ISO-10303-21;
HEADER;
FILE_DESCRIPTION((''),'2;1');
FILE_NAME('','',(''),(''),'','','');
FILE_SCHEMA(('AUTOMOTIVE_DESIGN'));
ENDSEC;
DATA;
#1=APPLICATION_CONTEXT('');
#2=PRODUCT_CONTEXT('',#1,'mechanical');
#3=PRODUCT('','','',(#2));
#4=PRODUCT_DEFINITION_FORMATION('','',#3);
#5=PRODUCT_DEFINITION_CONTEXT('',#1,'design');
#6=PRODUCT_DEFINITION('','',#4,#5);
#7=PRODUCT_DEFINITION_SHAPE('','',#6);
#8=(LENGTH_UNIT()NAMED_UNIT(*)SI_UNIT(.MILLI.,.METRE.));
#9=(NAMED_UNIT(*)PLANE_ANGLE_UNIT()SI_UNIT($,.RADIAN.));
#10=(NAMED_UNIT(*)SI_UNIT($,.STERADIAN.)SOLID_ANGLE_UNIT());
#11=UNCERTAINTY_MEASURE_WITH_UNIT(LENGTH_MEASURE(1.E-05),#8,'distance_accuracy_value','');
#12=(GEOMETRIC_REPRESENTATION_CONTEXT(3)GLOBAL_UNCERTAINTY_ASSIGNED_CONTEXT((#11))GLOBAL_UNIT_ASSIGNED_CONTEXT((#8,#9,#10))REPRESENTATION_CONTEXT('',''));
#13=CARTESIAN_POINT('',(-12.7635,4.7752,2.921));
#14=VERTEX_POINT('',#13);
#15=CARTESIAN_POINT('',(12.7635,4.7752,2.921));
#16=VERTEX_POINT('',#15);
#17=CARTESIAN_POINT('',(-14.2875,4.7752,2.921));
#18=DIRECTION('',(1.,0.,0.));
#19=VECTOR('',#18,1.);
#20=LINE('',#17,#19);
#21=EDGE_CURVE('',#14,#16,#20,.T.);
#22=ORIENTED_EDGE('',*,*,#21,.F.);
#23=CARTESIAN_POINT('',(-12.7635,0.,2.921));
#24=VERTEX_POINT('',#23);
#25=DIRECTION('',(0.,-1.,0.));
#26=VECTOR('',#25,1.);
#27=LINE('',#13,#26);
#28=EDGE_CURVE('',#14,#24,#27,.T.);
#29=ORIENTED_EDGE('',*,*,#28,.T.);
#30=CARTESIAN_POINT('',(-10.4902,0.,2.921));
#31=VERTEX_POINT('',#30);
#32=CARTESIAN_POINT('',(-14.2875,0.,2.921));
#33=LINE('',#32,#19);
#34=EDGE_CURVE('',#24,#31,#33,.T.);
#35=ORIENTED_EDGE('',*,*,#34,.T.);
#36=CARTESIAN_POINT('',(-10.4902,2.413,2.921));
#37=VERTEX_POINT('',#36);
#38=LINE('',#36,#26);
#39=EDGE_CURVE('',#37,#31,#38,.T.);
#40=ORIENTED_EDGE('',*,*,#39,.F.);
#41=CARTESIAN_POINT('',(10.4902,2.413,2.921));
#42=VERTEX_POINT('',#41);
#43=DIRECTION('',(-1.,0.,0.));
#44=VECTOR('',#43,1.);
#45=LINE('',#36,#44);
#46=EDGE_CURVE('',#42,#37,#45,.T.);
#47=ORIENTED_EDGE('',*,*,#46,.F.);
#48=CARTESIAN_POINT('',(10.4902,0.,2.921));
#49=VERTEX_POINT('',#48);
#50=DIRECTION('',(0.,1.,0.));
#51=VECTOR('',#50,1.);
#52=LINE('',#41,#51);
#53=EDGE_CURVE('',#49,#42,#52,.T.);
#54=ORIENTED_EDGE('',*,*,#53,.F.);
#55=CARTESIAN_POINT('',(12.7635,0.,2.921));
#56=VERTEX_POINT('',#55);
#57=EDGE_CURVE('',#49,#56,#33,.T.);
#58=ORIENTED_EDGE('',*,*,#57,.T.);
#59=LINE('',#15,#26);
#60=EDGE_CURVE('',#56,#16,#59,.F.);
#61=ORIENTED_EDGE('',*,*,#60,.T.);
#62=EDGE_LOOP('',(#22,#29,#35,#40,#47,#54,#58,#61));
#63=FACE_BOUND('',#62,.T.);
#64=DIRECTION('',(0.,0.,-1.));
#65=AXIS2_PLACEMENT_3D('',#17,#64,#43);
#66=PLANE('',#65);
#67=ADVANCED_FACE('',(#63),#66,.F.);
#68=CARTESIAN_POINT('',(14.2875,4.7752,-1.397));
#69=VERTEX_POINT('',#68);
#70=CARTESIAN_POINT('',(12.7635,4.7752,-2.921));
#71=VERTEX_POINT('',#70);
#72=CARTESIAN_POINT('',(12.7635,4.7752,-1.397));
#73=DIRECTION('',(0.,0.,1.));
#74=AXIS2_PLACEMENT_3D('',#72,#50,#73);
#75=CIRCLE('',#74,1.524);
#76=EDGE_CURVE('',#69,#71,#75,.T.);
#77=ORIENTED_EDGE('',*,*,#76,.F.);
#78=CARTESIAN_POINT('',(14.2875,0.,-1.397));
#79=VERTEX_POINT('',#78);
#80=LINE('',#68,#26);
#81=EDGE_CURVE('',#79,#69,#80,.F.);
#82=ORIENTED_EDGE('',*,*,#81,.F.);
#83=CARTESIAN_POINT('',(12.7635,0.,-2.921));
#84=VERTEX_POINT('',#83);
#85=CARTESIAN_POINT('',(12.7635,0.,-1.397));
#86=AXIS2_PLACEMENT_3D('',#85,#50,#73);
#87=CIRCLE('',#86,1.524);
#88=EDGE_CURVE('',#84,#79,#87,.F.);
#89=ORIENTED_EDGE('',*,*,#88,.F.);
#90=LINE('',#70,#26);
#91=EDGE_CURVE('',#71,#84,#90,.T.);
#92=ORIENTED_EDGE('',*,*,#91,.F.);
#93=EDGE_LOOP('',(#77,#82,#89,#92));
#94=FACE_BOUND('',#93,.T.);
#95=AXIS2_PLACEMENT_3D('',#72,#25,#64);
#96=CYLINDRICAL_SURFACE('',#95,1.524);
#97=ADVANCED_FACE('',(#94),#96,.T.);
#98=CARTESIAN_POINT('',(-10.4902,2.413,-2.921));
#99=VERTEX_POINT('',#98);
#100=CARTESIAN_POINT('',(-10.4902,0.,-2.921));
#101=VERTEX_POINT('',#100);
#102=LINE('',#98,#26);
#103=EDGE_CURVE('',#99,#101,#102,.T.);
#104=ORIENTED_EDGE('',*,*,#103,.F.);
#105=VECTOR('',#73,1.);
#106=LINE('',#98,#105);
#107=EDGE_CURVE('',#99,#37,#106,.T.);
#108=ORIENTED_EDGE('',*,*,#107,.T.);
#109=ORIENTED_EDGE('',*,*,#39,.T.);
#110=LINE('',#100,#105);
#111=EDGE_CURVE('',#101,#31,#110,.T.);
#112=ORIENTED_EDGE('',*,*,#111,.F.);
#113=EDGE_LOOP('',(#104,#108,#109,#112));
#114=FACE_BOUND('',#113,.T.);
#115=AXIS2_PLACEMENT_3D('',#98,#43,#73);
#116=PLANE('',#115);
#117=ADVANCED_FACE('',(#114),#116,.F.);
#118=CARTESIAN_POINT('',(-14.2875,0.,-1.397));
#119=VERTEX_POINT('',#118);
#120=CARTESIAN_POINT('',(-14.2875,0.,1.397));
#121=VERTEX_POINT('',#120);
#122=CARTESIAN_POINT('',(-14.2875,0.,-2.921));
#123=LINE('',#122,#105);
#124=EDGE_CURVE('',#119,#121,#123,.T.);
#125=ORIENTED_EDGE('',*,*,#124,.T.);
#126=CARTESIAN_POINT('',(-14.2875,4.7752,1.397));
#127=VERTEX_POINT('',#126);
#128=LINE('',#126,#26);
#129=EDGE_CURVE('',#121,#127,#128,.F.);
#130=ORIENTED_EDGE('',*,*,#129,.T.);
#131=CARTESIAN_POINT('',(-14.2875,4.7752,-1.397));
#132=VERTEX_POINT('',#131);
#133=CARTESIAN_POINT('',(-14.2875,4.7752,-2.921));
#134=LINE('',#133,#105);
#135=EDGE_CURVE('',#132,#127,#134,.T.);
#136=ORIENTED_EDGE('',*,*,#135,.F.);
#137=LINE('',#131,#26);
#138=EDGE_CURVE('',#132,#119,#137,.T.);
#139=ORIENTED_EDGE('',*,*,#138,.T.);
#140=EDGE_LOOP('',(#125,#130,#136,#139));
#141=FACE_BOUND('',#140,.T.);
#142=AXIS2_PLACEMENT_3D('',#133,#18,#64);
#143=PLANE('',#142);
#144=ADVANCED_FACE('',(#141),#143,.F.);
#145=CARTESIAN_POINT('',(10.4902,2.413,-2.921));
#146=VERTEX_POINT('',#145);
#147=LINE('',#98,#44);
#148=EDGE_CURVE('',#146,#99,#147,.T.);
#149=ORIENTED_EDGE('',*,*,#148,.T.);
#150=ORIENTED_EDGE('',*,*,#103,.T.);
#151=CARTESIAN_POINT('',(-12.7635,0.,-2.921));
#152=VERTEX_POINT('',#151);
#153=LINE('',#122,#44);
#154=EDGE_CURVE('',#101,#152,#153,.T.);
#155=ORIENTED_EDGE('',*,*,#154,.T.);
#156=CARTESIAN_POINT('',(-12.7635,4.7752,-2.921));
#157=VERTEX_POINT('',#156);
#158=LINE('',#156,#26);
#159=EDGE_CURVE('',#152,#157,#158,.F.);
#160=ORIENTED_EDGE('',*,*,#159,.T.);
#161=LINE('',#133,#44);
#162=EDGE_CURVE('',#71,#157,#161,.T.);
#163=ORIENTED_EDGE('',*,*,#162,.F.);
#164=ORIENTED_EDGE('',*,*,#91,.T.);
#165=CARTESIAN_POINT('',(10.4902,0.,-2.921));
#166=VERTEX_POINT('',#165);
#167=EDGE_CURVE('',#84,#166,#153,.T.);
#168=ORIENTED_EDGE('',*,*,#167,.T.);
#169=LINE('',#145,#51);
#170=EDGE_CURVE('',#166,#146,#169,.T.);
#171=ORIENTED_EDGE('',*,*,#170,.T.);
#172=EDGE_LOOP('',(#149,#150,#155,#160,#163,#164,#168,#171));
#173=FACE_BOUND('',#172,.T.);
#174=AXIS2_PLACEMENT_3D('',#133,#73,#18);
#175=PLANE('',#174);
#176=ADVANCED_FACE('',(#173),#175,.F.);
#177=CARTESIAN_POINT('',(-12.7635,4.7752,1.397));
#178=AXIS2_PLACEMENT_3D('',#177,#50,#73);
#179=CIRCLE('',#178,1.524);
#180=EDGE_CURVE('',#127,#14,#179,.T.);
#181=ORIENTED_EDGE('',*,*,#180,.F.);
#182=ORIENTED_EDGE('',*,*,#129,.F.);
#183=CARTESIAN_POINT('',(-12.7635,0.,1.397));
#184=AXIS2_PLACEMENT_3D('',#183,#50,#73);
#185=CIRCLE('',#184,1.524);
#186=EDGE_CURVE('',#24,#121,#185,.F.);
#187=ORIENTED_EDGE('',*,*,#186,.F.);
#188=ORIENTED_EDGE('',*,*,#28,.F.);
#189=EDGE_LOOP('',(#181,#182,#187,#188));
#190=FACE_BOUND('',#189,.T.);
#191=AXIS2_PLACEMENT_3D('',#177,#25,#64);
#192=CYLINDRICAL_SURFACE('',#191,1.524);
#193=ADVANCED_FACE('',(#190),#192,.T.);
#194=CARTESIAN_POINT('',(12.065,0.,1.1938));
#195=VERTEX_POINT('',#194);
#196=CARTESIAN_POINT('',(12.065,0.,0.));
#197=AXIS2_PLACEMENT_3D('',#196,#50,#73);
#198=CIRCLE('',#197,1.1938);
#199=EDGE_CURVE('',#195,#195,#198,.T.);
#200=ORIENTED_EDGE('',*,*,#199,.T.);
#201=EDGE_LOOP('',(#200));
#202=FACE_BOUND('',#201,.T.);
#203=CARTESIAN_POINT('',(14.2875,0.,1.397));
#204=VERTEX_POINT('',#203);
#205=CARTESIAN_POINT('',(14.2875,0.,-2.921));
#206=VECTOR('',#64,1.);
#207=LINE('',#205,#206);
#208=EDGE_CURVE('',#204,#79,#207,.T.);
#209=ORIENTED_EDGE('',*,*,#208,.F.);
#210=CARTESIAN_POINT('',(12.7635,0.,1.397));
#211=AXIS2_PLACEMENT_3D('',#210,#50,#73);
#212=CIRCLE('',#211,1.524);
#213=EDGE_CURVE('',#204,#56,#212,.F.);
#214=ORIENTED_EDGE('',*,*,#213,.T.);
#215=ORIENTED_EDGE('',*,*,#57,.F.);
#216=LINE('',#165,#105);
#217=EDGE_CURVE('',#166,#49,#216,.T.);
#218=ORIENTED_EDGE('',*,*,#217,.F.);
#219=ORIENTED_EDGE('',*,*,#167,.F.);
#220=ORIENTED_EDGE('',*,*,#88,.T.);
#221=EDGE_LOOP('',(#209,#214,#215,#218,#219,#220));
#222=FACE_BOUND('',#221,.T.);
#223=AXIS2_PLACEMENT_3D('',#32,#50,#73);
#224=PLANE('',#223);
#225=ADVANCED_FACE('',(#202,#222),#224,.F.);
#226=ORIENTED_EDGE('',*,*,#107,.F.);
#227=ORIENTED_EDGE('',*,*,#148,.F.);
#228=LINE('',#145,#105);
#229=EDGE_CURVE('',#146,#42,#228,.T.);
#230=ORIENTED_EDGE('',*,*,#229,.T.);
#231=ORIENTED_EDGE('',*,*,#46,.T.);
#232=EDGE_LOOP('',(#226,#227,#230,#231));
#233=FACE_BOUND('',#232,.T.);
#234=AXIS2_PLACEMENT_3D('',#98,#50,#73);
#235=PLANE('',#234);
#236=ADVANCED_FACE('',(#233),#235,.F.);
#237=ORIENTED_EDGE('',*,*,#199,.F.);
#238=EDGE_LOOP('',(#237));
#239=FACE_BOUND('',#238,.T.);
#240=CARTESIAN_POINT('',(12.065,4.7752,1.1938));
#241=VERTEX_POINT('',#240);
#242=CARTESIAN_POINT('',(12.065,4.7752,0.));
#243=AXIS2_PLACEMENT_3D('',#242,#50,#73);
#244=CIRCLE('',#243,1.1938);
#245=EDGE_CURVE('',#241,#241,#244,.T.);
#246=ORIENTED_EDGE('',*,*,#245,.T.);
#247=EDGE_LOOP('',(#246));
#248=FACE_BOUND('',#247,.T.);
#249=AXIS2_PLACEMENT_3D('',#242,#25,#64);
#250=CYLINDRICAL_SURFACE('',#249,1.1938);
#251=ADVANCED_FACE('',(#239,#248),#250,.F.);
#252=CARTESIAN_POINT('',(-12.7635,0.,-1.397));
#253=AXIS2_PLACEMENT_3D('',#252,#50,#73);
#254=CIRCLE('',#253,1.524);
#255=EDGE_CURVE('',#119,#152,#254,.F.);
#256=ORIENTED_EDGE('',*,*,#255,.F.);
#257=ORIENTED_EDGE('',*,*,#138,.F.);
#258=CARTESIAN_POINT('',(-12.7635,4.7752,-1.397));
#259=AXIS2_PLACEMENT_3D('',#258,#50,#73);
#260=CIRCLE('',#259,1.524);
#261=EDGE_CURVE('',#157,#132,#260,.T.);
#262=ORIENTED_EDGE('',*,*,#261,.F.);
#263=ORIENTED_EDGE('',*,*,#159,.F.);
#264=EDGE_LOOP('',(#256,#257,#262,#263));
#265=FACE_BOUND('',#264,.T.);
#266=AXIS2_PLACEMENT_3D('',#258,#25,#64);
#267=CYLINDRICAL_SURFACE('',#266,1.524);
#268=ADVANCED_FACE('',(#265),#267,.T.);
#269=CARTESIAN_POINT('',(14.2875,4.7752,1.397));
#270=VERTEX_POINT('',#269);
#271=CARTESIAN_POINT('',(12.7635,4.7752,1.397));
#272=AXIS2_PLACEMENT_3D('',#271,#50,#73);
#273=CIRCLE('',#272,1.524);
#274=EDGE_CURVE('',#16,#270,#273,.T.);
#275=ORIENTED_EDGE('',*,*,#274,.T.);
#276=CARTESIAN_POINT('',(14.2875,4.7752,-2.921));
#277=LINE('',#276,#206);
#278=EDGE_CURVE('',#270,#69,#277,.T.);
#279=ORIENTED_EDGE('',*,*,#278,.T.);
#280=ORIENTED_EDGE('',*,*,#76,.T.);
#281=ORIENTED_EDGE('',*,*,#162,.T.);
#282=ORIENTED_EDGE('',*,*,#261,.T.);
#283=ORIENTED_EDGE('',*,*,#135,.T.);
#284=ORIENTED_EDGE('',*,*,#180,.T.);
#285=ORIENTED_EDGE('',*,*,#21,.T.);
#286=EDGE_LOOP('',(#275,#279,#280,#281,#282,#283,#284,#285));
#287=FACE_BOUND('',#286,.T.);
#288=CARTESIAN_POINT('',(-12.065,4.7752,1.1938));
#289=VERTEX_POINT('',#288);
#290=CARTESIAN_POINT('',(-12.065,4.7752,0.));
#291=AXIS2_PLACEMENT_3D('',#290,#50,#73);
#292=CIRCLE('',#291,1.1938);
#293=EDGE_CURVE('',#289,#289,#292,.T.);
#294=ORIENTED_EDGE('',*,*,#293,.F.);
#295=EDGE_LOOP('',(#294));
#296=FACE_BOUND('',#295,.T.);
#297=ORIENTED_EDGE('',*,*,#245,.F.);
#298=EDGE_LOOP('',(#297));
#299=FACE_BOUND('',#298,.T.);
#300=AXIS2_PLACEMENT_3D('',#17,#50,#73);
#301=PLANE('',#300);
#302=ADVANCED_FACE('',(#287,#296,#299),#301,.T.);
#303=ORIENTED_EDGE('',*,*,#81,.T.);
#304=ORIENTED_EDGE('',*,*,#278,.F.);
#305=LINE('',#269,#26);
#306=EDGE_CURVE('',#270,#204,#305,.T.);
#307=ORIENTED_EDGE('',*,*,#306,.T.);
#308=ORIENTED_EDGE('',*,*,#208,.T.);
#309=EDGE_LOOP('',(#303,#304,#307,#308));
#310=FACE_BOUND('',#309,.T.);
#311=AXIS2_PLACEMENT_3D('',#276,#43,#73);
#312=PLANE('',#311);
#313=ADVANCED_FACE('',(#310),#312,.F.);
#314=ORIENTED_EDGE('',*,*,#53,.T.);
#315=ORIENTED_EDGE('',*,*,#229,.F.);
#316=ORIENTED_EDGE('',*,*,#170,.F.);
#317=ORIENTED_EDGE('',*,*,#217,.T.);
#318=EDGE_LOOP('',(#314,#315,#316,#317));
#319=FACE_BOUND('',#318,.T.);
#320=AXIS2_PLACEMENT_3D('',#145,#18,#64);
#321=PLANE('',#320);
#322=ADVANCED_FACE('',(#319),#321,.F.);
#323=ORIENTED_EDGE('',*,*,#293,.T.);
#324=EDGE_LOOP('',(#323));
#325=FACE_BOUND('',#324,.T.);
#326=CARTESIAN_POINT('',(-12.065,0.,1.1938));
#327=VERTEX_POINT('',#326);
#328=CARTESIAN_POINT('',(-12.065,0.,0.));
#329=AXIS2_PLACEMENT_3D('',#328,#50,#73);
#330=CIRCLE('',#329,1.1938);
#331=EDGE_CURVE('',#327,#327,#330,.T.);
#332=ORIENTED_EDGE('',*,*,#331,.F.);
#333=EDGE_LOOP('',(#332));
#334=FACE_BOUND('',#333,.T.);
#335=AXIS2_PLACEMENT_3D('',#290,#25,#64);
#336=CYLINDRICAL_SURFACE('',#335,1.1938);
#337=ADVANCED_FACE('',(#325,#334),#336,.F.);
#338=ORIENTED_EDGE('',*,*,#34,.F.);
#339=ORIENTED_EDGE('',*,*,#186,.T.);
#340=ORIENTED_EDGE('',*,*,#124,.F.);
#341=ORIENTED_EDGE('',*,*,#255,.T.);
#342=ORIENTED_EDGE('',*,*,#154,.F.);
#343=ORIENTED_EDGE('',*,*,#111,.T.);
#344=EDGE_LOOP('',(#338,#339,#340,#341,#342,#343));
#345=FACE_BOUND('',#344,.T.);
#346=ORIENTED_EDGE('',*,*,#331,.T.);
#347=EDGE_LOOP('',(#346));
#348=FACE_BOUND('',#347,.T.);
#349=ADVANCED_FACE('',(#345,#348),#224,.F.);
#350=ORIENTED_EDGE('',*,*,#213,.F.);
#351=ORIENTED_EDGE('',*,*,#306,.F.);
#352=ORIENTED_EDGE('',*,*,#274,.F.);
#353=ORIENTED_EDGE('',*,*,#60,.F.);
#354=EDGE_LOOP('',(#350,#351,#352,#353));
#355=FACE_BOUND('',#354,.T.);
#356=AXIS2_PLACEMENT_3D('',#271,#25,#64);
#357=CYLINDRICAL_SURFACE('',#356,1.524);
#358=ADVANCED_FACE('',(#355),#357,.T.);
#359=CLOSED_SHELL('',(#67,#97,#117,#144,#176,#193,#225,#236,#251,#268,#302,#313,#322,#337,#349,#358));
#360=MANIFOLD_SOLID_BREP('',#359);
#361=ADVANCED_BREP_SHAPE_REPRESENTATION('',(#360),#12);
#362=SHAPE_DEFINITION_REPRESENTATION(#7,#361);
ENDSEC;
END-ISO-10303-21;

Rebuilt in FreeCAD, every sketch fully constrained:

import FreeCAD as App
import Part
import Sketcher
from FreeCAD import Vector
Q = App.Units.Quantity


def edges_at(feature, points):
    """Names of the edges that pass closest to the given points."""
    edges = feature.Shape.Edges
    near = lambda p: min(range(len(edges)), key=lambda i: edges[i].distToShape(Part.Vertex(*p))[0])
    return sorted({f"Edge{near(p) + 1}" for p in points})

doc = App.newDocument("Part")
body = doc.addObject("PartDesign::Body", "Body")

# Sketch on XZ plane
sketch1 = doc.addObject("Sketcher::SketchObject", "Sketch")
body.addObject(sketch1)
sketch1.AttachmentSupport = (doc.XZ_Plane, [""])
sketch1.MapMode = "FlatFace"
sketch1.addGeometry([
    Part.LineSegment(Vector(-14.3, -2.9, 0), Vector(-14.3, 2.9, 0)),  # 0
    Part.LineSegment(Vector(-14.3, 2.9, 0), Vector(14.3, 2.9, 0)),  # 1
    Part.LineSegment(Vector(14.3, 2.9, 0), Vector(14.3, -2.9, 0)),  # 2
    Part.LineSegment(Vector(14.3, -2.9, 0), Vector(-14.3, -2.9, 0)),  # 3
    Part.Circle(Vector(-12.1, 0, 0), Vector(0, 0, 1), 1.2),  # 4
    Part.Circle(Vector(12.1, 0, 0), Vector(0, 0, 1), 1.2),  # 5
], False)
sketch1.addConstraint([
    Sketcher.Constraint("Coincident", 0, 2, 1, 1),
    Sketcher.Constraint("Coincident", 1, 2, 2, 1),
    Sketcher.Constraint("Coincident", 2, 2, 3, 1),
    Sketcher.Constraint("Coincident", 3, 2, 0, 1),
    Sketcher.Constraint("Vertical", 0),
    Sketcher.Constraint("Horizontal", 1),
    Sketcher.Constraint("Vertical", 2),
    Sketcher.Constraint("Horizontal", 3),
    Sketcher.Constraint("Equal", 4, 5),
    Sketcher.Constraint("Symmetric", 4, 3, 5, 3, -1, 1),
    Sketcher.Constraint("Symmetric", 0, 2, 2, 2, -1, 1),
    Sketcher.Constraint("PointOnObject", 4, 3, -1),
    Sketcher.Constraint("Diameter", 4, Q("0.094 in")),
    Sketcher.Constraint("DistanceY", 0, 1, 0, 2, Q("0.23 in")),
    Sketcher.Constraint("DistanceX", 1, 1, 1, 2, Q("1.125 in")),
    Sketcher.Constraint("DistanceX", 4, 3, 5, 3, Q("0.95 in")),
])
pad1 = doc.addObject("PartDesign::Pad", "Pad")
body.addObject(pad1)
pad1.Profile = sketch1
pad1.Length = Q("0.188 in")
pad1.Reversed = True
doc.recompute()

fillet = doc.addObject("PartDesign::Fillet", "Fillet")
body.addObject(fillet)
fillet.Base = (pad1, edges_at(pad1, [
    (-14.287, 2.388, -2.921),
    (14.287, 2.388, -2.921),
    (14.287, 2.388, 2.921),
    (-14.287, 2.388, 2.921),
]))
fillet.Radius = Q("0.06 in")

# Sketch on XY plane
sketch2 = doc.addObject("Sketcher::SketchObject", "Sketch001")
body.addObject(sketch2)
sketch2.AttachmentSupport = (doc.XY_Plane, [""])
sketch2.MapMode = "FlatFace"
sketch2.addGeometry([
    Part.LineSegment(Vector(-10.5, 2.4, 0), Vector(-10.5, 0, 0)),
    Part.LineSegment(Vector(-10.5, 0, 0), Vector(10.5, 0, 0)),
    Part.LineSegment(Vector(10.5, 0, 0), Vector(10.5, 2.4, 0)),
    Part.LineSegment(Vector(10.5, 2.4, 0), Vector(-10.5, 2.4, 0)),
], False)
sketch2.addConstraint([
    Sketcher.Constraint("Coincident", 0, 2, 1, 1),
    Sketcher.Constraint("Coincident", 1, 2, 2, 1),
    Sketcher.Constraint("Coincident", 2, 2, 3, 1),
    Sketcher.Constraint("Coincident", 3, 2, 0, 1),
    Sketcher.Constraint("Vertical", 0),
    Sketcher.Constraint("Horizontal", 1),
    Sketcher.Constraint("Vertical", 2),
    Sketcher.Constraint("Horizontal", 3),
    Sketcher.Constraint("Symmetric", 0, 2, 1, 2, -1, 1),
    Sketcher.Constraint("DistanceX", 1, 1, 1, 2, Q("0.826 in")),
    Sketcher.Constraint("DistanceY", 0, 2, 0, 1, Q("0.095 in")),
])
pocket1 = doc.addObject("PartDesign::Pocket", "Pocket")
body.addObject(pocket1)
pocket1.Profile = sketch2
pocket1.Type = "ThroughAll"
pocket1.Midplane = True

doc.recompute()
